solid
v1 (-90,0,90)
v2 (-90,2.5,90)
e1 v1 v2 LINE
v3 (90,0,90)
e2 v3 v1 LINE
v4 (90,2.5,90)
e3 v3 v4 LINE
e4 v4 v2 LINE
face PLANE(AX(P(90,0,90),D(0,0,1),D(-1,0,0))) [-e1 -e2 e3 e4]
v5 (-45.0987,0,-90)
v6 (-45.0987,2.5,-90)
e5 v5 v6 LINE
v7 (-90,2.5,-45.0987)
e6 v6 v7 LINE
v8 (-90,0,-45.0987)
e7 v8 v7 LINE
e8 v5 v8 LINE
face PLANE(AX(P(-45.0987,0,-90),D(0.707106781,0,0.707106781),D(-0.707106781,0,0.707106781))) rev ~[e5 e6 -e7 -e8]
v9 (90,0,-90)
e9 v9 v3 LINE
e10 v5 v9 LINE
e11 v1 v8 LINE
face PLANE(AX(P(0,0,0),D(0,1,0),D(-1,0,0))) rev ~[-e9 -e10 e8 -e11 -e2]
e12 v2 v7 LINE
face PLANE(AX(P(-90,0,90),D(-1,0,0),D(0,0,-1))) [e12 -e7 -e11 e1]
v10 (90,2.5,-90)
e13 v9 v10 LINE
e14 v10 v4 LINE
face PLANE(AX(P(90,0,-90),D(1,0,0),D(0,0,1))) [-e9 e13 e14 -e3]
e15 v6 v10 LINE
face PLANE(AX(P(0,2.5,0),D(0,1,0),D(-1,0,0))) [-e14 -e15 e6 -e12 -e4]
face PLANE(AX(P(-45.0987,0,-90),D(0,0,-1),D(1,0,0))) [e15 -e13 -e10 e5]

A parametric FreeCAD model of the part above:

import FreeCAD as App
import Part
import Sketcher

V = App.Vector


def add_polygon(sketch, points):
    """Adds a closed chain of lines whose ends are joined by coincident constraints."""
    first, n = sketch.GeometryCount, len(points)
    for a, b in zip(points, points[1:] + points[:1]):
        sketch.addGeometry(Part.LineSegment(App.Vector(*a, 0), App.Vector(*b, 0)), False)
    for i in range(n):
        sketch.addConstraint(Sketcher.Constraint("Coincident", first + i, 2, first + (i + 1) % n, 1))

doc = App.newDocument("Part")
params = doc.addObject("Spreadsheet::Sheet", "Params")
for row, (alias, value) in enumerate([
    ("sketch1_width", "180 mm"),
    ("sketch1_length", "63.5 mm"),
    ("pad1_length", "2.5 mm"),
], start=1):
    params.set(f"A{row}", alias)
    params.set(f"B{row}", "=" + value)
    params.setAlias(f"B{row}", alias)

body = doc.addObject("PartDesign::Body", "Body")

sketch1 = doc.addObject("Sketcher::SketchObject", "Sketch")
body.addObject(sketch1)
sketch1.AttachmentSupport = (doc.XZ_Plane, [""])
sketch1.MapMode = "FlatFace"
add_polygon(sketch1, [(-90, 90), (90, 90), (90, -90), (-45, -90), (-90, -45)])
sketch1.addConstraint(Sketcher.Constraint("Horizontal", 0))
sketch1.addConstraint(Sketcher.Constraint("Vertical", 1))
sketch1.addConstraint(Sketcher.Constraint("Horizontal", 2))
sketch1.addConstraint(Sketcher.Constraint("Vertical", 4))
sketch1.addConstraint(Sketcher.Constraint("Symmetric", 1, 2, 4, 2, -1, 1))
sketch1.addConstraint(Sketcher.Constraint("Equal", 0, 1))
sketch1.addConstraint(Sketcher.Constraint("Equal", 2, 4))
sketch1.addConstraint(Sketcher.Constraint("DistanceX", 0, 1, 0, 2, 180.0))
sketch1.addConstraint(Sketcher.Constraint("Distance", 3, 63.5))
sketch1.setExpression("Constraints[12]", "Params.sketch1_width")
sketch1.setExpression("Constraints[13]", "Params.sketch1_length")
pad1 = doc.addObject("PartDesign::Pad", "Pad")
body.addObject(pad1)
pad1.Profile = sketch1
pad1.setExpression("Length", "Params.pad1_length")
pad1.Reversed = True

doc.recompute()
